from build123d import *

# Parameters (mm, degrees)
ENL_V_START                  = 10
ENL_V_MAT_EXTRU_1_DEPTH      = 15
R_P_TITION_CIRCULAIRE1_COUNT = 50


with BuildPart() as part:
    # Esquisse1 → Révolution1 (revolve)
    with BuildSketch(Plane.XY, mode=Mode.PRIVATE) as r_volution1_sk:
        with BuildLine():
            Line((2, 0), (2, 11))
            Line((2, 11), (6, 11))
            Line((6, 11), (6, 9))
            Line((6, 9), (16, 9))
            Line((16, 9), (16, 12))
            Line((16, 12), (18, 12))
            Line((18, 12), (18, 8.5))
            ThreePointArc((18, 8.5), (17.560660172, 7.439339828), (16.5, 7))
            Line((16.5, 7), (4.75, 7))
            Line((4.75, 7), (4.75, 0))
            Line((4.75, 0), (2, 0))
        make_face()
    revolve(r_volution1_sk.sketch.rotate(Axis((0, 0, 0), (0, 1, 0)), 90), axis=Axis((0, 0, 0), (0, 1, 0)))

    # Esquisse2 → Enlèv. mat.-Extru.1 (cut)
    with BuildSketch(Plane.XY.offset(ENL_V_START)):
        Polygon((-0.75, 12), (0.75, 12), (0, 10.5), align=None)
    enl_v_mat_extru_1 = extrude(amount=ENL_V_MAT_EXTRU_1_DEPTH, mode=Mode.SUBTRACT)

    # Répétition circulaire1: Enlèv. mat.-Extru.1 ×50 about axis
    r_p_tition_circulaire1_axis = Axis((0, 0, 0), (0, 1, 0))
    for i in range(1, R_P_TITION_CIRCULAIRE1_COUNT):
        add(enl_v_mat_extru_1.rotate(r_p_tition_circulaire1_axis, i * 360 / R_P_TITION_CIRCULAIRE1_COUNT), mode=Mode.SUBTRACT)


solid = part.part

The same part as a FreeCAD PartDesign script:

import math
import FreeCAD as App
import Part
import Sketcher

doc = App.newDocument("Part")
body = doc.addObject("PartDesign::Body", "Body")

# Sketch on XY plane
sketch1 = doc.addObject("Sketcher::SketchObject", "Sketch")
body.addObject(sketch1)
sketch1.AttachmentSupport = (doc.XY_Plane, [""])
sketch1.MapMode = "FlatFace"
sketch1.addGeometry(Part.LineSegment(App.Vector(2, 11, 0), App.Vector(2, 0, 0)), False)
sketch1.addGeometry(Part.LineSegment(App.Vector(2, 0, 0), App.Vector(4.8, 0, 0)), False)
sketch1.addGeometry(Part.LineSegment(App.Vector(4.8, 0, 0), App.Vector(4.8, 7, 0)), False)
sketch1.addGeometry(Part.LineSegment(App.Vector(4.8, 7, 0), App.Vector(16.5, 7, 0)), False)
sketch1.addGeometry(Part.ArcOfCircle(Part.Circle(App.Vector(16.5, 8.5, 0), App.Vector(0, 0, 1), 1.5), math.radians(-90), math.radians(0)), False)
sketch1.addGeometry(Part.LineSegment(App.Vector(18, 8.5, 0), App.Vector(18, 12, 0)), False)
sketch1.addGeometry(Part.LineSegment(App.Vector(18, 12, 0), App.Vector(16, 12, 0)), False)
sketch1.addGeometry(Part.LineSegment(App.Vector(16, 12, 0), App.Vector(16, 9, 0)), False)
sketch1.addGeometry(Part.LineSegment(App.Vector(16, 9, 0), App.Vector(6, 9, 0)), False)
sketch1.addGeometry(Part.LineSegment(App.Vector(6, 9, 0), App.Vector(6, 11, 0)), False)
sketch1.addGeometry(Part.LineSegment(App.Vector(6, 11, 0), App.Vector(2, 11, 0)), False)
sketch1.addConstraint(Sketcher.Constraint("Coincident", 0, 2, 1, 1))
sketch1.addConstraint(Sketcher.Constraint("Coincident", 1, 2, 2, 1))
sketch1.addConstraint(Sketcher.Constraint("Coincident", 2, 2, 3, 1))
sketch1.addConstraint(Sketcher.Constraint("Tangent", 3, 2, 4, 1))
sketch1.addConstraint(Sketcher.Constraint("Tangent", 4, 2, 5, 1))
sketch1.addConstraint(Sketcher.Constraint("Coincident", 5, 2, 6, 1))
sketch1.addConstraint(Sketcher.Constraint("Coincident", 6, 2, 7, 1))
sketch1.addConstraint(Sketcher.Constraint("Coincident", 7, 2, 8, 1))
sketch1.addConstraint(Sketcher.Constraint("Coincident", 8, 2, 9, 1))
sketch1.addConstraint(Sketcher.Constraint("Coincident", 9, 2, 10, 1))
sketch1.addConstraint(Sketcher.Constraint("Coincident", 10, 2, 0, 1))
sketch1.addConstraint(Sketcher.Constraint("Vertical", 0))
sketch1.addConstraint(Sketcher.Constraint("Horizontal", 1))
sketch1.addConstraint(Sketcher.Constraint("Vertical", 2))
sketch1.addConstraint(Sketcher.Constraint("Horizontal", 3))
sketch1.addConstraint(Sketcher.Constraint("Vertical", 5))
sketch1.addConstraint(Sketcher.Constraint("Horizontal", 6))
sketch1.addConstraint(Sketcher.Constraint("Vertical", 7))
sketch1.addConstraint(Sketcher.Constraint("Horizontal", 8))
sketch1.addConstraint(Sketcher.Constraint("Vertical", 9))
sketch1.addConstraint(Sketcher.Constraint("Horizontal", 10))
sketch1.addConstraint(Sketcher.Constraint("PointOnObject", 0, 2, -1))
sketch1.addConstraint(Sketcher.Constraint("Equal", 6, 9))
sketch1.addConstraint(Sketcher.Constraint("Radius", 4, 1.5))
sketch1.addConstraint(Sketcher.Constraint("DistanceX", 6, 2, 6, 1, 2.0))
sketch1.addConstraint(Sketcher.Constraint("DistanceX", 8, 2, 8, 1, 10.0))
sketch1.addConstraint(Sketcher.Constraint("DistanceX", 10, 2, 10, 1, 4.0))
sketch1.addConstraint(Sketcher.Constraint("DistanceY", 0, 2, 0, 1, 11.0))
sketch1.addConstraint(Sketcher.Constraint("DistanceY", 2, 1, 2, 2, 7.0))
sketch1.addConstraint(Sketcher.Constraint("DistanceY", 7, 2, 7, 1, 3.0))
sketch1.addConstraint(Sketcher.Constraint("DistanceX", -1, 1, 0, 2, 2.0))
sketch1.addConstraint(Sketcher.Constraint("DistanceX", 1, 1, 1, 2, 2.75))
revolution = doc.addObject("PartDesign::Revolution", "Revolution")
body.addObject(revolution)
revolution.Profile = sketch1
revolution.ReferenceAxis = (sketch1, ["V_Axis"])
revolution.Angle = 360

# Sketch on XY plane
sketch2 = doc.addObject("Sketcher::SketchObject", "Sketch001")
body.addObject(sketch2)
sketch2.AttachmentSupport = (doc.XY_Plane, [""])
sketch2.MapMode = "FlatFace"
sketch2.AttachmentOffset = App.Placement(App.Vector(0, 0, 10), App.Rotation())
sketch2.addGeometry(Part.LineSegment(App.Vector(0.8, 12, 0), App.Vector(-0.8, 12, 0)), False)
sketch2.addGeometry(Part.LineSegment(App.Vector(-0.8, 12, 0), App.Vector(0, 10.5, 0)), False)
sketch2.addGeometry(Part.LineSegment(App.Vector(0, 10.5, 0), App.Vector(0.8, 12, 0)), False)
sketch2.addConstraint(Sketcher.Constraint("Coincident", 0, 2, 1, 1))
sketch2.addConstraint(Sketcher.Constraint("Coincident", 1, 2, 2, 1))
sketch2.addConstraint(Sketcher.Constraint("Coincident", 2, 2, 0, 1))
sketch2.addConstraint(Sketcher.Constraint("Horizontal", 0))
sketch2.addConstraint(Sketcher.Constraint("PointOnObject", 1, 2, -2))
sketch2.addConstraint(Sketcher.Constraint("Equal", 1, 2))
sketch2.addConstraint(Sketcher.Constraint("DistanceX", 0, 2, 0, 1, 1.5))
sketch2.addConstraint(Sketcher.Constraint("DistanceY", -1, 1, 0, 2, 12.0))
sketch2.addConstraint(Sketcher.Constraint("DistanceY", -1, 1, 1, 2, 10.5))
pocket1 = doc.addObject("PartDesign::Pocket", "Pocket")
body.addObject(pocket1)
pocket1.Profile = sketch2
pocket1.Length = 15
pocket1.Reversed = True
doc.recompute()

polarpattern = doc.addObject("PartDesign::PolarPattern", "PolarPattern")
body.addObject(polarpattern)
polarpattern.Originals = [pocket1]
polarpattern.Axis = (doc.Y_Axis, [""])
polarpattern.Angle = 360
polarpattern.Occurrences = 50
body.Tip = polarpattern

doc.recompute()
